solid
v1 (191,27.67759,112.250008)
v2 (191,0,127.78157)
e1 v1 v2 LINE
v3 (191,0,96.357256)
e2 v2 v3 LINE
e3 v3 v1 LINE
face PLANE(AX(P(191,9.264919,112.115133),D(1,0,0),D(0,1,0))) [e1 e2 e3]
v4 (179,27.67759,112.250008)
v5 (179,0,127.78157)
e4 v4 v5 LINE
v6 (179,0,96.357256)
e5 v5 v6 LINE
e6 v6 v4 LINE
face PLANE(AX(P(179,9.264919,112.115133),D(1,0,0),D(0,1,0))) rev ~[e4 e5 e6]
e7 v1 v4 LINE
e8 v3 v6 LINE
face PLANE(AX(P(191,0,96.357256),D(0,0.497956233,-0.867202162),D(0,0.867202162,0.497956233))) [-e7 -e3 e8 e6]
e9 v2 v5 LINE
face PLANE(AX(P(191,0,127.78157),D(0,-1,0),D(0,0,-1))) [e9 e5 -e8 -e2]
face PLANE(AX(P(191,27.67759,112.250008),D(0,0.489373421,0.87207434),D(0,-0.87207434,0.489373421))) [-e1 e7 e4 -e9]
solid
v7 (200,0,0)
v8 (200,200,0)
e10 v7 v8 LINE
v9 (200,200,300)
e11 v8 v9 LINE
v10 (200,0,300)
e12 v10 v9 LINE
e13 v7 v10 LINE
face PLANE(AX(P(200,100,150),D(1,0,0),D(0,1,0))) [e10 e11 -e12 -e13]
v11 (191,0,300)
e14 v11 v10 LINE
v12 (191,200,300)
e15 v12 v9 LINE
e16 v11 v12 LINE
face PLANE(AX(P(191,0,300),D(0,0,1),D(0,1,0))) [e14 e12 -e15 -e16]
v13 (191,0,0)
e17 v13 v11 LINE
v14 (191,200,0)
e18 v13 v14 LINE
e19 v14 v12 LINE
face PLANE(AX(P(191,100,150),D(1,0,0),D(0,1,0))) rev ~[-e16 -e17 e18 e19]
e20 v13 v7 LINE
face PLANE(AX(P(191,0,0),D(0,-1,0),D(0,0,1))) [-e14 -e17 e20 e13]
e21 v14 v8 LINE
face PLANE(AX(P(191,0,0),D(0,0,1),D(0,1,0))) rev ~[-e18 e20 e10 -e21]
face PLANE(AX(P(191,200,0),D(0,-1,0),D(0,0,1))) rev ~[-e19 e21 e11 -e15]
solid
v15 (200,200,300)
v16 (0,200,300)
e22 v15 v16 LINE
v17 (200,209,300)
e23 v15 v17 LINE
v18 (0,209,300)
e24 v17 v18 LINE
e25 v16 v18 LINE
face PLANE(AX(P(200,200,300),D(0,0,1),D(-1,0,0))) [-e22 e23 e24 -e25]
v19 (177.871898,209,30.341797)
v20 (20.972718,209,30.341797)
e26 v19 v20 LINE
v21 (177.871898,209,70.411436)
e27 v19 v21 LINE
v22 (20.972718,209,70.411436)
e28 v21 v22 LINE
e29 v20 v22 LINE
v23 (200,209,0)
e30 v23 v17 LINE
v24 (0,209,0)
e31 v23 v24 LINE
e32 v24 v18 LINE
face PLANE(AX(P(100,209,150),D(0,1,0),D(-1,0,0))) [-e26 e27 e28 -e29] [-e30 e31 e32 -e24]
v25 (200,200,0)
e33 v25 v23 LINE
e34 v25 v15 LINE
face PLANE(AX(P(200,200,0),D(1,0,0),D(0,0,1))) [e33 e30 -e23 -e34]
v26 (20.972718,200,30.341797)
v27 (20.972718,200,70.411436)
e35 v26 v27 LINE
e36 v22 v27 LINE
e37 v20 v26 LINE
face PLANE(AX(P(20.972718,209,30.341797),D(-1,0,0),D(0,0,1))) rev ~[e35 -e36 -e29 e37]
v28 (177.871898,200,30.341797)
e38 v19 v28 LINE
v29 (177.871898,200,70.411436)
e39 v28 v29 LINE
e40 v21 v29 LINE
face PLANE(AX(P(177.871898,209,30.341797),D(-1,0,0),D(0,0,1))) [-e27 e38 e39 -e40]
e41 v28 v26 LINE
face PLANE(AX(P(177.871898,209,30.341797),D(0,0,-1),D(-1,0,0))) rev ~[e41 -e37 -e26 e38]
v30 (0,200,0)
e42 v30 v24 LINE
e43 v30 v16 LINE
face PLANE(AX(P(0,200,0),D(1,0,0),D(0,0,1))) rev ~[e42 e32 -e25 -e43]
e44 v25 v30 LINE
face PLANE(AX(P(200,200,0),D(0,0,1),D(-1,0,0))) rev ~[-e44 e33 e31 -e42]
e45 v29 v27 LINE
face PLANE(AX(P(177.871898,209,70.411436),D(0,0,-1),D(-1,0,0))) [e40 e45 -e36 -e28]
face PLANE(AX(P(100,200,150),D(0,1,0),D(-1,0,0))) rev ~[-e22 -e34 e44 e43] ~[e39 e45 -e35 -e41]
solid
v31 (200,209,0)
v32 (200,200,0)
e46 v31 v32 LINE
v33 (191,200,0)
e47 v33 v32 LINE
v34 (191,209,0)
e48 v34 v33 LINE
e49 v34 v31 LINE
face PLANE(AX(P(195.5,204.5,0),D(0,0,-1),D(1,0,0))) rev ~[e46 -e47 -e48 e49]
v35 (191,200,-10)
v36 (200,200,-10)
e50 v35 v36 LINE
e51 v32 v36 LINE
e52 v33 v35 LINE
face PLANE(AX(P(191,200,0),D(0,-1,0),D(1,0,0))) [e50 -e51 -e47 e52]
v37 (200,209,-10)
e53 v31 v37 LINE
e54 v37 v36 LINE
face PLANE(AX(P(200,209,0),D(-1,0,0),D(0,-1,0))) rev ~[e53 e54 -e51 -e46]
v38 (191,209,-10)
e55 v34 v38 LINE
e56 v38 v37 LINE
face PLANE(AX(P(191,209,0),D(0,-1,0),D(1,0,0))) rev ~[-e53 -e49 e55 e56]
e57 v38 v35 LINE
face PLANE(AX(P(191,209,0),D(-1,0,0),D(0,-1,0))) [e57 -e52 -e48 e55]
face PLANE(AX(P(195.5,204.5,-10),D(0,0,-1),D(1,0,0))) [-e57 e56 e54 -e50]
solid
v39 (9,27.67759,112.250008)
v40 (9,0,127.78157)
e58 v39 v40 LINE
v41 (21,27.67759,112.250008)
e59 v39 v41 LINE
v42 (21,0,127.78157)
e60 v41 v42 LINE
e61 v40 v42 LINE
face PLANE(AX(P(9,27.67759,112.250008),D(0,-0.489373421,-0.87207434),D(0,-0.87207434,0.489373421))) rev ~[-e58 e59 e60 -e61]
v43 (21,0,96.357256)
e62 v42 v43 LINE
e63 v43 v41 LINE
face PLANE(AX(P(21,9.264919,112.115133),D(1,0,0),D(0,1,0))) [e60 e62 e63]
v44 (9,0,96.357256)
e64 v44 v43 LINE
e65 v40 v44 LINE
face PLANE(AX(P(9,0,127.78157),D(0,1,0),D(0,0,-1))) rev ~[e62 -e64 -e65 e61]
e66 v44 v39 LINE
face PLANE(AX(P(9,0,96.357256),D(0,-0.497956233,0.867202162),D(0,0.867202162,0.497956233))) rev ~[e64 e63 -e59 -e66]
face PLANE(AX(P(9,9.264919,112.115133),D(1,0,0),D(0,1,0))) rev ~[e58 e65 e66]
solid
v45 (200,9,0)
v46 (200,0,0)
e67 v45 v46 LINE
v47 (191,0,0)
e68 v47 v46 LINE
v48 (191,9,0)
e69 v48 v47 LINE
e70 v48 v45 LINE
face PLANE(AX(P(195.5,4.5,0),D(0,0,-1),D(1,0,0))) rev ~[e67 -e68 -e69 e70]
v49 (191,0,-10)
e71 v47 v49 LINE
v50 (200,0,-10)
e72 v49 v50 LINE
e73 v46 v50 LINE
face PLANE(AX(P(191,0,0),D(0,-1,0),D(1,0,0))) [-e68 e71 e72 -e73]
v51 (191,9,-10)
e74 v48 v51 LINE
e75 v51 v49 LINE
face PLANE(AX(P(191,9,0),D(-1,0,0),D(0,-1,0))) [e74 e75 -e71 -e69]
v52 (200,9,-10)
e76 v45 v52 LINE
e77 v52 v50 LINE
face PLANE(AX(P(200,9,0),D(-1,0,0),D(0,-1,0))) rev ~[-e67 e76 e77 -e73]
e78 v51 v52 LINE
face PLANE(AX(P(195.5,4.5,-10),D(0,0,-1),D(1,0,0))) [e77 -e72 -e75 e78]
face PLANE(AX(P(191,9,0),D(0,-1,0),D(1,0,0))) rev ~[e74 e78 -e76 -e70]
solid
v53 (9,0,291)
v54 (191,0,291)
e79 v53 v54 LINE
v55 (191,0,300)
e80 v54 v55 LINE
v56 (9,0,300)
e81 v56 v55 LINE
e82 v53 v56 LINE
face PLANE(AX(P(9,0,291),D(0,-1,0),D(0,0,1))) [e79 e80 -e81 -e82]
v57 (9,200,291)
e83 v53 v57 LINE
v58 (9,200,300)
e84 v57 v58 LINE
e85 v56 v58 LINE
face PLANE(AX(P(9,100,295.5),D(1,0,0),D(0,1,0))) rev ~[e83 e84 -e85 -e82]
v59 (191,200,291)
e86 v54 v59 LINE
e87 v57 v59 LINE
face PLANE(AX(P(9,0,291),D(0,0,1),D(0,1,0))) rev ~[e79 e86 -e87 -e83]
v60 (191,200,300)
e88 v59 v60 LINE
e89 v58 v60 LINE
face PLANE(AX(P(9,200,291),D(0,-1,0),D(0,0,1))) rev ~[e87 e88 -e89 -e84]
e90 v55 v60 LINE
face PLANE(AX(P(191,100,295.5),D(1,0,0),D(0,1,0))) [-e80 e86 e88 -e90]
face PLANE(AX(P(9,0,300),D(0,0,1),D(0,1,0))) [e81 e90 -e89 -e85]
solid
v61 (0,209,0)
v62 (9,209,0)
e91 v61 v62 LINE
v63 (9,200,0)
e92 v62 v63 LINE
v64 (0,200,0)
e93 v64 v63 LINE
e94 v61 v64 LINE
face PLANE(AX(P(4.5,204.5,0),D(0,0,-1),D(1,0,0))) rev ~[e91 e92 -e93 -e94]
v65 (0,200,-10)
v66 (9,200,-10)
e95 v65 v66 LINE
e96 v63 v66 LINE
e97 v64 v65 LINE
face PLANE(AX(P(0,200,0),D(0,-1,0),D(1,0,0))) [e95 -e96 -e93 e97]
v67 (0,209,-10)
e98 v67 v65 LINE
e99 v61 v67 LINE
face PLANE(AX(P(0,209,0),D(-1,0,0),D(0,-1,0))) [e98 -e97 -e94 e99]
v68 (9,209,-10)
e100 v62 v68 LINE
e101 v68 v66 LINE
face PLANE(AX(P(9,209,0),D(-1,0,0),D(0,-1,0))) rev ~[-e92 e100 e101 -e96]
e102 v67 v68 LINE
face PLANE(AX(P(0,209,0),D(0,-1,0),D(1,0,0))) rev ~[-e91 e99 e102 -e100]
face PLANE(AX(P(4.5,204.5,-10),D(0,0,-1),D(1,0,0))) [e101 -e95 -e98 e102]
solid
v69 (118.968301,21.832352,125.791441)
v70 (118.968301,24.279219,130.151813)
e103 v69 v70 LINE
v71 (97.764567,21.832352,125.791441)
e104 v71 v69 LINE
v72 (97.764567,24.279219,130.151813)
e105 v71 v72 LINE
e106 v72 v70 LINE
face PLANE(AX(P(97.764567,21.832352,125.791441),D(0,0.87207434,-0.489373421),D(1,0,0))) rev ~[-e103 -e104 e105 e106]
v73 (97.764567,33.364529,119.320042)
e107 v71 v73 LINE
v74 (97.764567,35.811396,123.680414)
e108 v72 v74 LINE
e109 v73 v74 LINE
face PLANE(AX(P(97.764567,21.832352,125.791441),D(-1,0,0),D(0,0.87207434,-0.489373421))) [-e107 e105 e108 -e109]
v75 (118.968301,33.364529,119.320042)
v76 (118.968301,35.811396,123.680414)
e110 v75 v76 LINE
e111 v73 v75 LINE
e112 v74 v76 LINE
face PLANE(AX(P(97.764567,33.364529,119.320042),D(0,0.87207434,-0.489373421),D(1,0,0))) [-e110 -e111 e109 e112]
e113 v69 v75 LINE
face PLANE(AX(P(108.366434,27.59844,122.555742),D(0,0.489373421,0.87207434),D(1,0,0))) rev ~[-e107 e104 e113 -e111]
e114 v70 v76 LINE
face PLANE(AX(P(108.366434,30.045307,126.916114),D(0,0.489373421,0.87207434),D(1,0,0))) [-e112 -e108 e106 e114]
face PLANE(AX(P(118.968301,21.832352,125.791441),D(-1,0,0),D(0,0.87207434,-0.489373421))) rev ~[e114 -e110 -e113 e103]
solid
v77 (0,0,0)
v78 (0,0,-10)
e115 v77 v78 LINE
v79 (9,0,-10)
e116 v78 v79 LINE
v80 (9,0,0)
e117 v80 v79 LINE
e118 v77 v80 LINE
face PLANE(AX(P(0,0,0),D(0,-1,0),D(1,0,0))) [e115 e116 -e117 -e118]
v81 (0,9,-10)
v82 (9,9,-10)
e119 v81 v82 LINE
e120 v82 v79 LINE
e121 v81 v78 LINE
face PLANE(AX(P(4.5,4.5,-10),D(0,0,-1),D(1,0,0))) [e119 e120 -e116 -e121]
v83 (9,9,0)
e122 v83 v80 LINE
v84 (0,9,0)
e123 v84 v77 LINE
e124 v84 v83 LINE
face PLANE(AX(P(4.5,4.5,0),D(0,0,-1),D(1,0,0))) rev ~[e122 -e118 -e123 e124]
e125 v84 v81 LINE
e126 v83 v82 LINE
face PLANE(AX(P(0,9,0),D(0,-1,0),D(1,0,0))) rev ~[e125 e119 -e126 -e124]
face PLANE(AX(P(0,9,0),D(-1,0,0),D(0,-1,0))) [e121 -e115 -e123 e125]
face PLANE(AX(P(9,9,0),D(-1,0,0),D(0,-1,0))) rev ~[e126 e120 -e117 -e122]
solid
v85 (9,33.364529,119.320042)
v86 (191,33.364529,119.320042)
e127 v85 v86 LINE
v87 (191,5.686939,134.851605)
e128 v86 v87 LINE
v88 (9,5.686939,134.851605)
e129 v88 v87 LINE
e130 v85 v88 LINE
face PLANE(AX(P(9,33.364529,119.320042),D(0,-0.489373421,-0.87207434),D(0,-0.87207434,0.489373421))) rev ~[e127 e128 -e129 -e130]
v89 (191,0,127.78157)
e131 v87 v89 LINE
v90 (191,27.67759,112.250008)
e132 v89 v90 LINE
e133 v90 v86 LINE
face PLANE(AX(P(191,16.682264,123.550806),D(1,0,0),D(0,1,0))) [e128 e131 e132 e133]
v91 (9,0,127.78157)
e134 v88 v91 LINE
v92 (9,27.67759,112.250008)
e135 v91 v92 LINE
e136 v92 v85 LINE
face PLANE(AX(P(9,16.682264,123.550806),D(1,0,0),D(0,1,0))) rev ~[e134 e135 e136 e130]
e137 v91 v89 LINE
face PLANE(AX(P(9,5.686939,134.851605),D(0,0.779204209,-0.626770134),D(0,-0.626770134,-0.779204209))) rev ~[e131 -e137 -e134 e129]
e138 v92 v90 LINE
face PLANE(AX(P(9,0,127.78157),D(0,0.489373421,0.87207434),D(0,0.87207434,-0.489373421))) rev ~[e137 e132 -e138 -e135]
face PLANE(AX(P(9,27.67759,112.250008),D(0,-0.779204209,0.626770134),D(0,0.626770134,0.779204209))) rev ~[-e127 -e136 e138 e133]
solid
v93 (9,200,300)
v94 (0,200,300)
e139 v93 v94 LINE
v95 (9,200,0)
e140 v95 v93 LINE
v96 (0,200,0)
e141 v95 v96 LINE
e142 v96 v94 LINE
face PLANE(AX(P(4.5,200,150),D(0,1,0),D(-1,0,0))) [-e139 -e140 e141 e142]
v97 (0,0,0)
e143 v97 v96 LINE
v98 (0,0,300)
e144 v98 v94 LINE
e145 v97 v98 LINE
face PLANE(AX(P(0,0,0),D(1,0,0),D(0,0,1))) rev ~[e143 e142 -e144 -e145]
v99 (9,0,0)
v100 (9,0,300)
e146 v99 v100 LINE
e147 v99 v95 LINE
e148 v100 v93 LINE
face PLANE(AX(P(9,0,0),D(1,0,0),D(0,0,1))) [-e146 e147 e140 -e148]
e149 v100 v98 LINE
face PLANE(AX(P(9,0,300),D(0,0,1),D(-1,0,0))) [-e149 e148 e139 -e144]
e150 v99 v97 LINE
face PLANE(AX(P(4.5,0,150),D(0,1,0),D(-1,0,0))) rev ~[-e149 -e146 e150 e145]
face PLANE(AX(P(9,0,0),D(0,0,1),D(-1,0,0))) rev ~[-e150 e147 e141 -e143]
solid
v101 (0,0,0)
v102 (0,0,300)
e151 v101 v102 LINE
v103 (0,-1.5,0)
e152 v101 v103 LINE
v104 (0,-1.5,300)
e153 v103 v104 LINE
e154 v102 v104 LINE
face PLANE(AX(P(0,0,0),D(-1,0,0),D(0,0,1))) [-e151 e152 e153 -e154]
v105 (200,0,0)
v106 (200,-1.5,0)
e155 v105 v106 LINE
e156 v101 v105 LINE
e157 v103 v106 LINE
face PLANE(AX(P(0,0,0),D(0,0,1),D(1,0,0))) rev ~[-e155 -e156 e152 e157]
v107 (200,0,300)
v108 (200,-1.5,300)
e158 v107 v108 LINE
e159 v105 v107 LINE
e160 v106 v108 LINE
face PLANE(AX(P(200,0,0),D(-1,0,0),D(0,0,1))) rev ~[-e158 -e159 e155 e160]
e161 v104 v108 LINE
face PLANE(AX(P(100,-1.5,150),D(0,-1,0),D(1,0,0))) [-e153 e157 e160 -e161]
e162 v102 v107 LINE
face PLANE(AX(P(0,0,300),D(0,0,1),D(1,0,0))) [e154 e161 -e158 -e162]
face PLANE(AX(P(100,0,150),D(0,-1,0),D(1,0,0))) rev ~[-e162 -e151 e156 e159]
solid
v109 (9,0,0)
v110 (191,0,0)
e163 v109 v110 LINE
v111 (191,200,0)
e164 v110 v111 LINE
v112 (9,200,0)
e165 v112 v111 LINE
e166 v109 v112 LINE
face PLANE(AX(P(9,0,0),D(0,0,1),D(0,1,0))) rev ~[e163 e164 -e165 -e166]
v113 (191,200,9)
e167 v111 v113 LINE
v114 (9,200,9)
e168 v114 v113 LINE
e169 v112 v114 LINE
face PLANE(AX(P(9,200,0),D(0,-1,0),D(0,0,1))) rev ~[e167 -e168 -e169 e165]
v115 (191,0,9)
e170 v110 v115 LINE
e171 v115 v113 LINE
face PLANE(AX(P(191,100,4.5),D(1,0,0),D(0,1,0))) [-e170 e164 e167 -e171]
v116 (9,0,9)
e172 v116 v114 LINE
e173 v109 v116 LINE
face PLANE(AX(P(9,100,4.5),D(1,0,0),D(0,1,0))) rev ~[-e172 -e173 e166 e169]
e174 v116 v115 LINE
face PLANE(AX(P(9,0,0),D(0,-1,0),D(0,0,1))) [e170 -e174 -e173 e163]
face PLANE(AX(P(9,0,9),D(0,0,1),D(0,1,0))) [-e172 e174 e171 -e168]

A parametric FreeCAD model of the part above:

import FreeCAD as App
import Part
import Sketcher
Q = App.Units.Quantity

doc = App.newDocument("Part")
body = doc.addObject("PartDesign::Body", "Body")

# Sketch on XZ plane
sketch1 = body.newObject("Sketcher::SketchObject", "Sketch")
sketch1.AttachmentSupport = (doc.getObject("XZ_Plane"), [""])
sketch1.MapMode = "FlatFace"
sketch1.addGeometry(Part.LineSegment(App.Vector(0, 300, 0), App.Vector(0, 0, 0)), False)
sketch1.addGeometry(Part.LineSegment(App.Vector(0, 0, 0), App.Vector(200, 0, 0)), False)
sketch1.addGeometry(Part.LineSegment(App.Vector(200, 0, 0), App.Vector(200, 300, 0)), False)
sketch1.addGeometry(Part.LineSegment(App.Vector(200, 300, 0), App.Vector(0, 300, 0)), False)
sketch1.addConstraint(Sketcher.Constraint("Coincident", 0, 2, 1, 1))
sketch1.addConstraint(Sketcher.Constraint("Coincident", 1, 2, 2, 1))
sketch1.addConstraint(Sketcher.Constraint("Coincident", 2, 2, 3, 1))
sketch1.addConstraint(Sketcher.Constraint("Coincident", 3, 2, 0, 1))
sketch1.addConstraint(Sketcher.Constraint("Vertical", 0))
sketch1.addConstraint(Sketcher.Constraint("Horizontal", 1))
sketch1.addConstraint(Sketcher.Constraint("Vertical", 2))
sketch1.addConstraint(Sketcher.Constraint("Horizontal", 3))
sketch1.addConstraint(Sketcher.Constraint("Coincident", 0, 2, -1, 1))
sketch1.addConstraint(Sketcher.Constraint("DistanceX", 1, 1, 1, 2, Q("200 mm")))
sketch1.addConstraint(Sketcher.Constraint("DistanceY", 0, 2, 0, 1, Q("300 mm")))
pad1 = body.newObject("PartDesign::Pad", "Pad")
pad1.Profile = sketch1
pad1.Length = 1.5
body2 = doc.addObject("PartDesign::Body", "Body001")

# Sketch on XZ plane
sketch2 = body2.newObject("Sketcher::SketchObject", "Sketch001")
sketch2.AttachmentSupport = (doc.getObject("XZ_Plane001"), [""])
sketch2.MapMode = "FlatFace"
sketch2.addGeometry(Part.LineSegment(App.Vector(9, 300, 0), App.Vector(9, 0, 0)), False)
sketch2.addGeometry(Part.LineSegment(App.Vector(9, 0, 0), App.Vector(0, 0, 0)), False)
sketch2.addGeometry(Part.LineSegment(App.Vector(0, 0, 0), App.Vector(0, 300, 0)), False)
sketch2.addGeometry(Part.LineSegment(App.Vector(0, 300, 0), App.Vector(9, 300, 0)), False)
sketch2.addConstraint(Sketcher.Constraint("Coincident", 0, 2, 1, 1))
sketch2.addConstraint(Sketcher.Constraint("Coincident", 1, 2, 2, 1))
sketch2.addConstraint(Sketcher.Constraint("Coincident", 2, 2, 3, 1))
sketch2.addConstraint(Sketcher.Constraint("Coincident", 3, 2, 0, 1))
sketch2.addConstraint(Sketcher.Constraint("Vertical", 0))
sketch2.addConstraint(Sketcher.Constraint("Horizontal", 1))
sketch2.addConstraint(Sketcher.Constraint("Vertical", 2))
sketch2.addConstraint(Sketcher.Constraint("Horizontal", 3))
sketch2.addConstraint(Sketcher.Constraint("Coincident", 1, 2, -1, 1))
sketch2.addConstraint(Sketcher.Constraint("DistanceX", 1, 2, 1, 1, Q("9 mm")))
sketch2.addConstraint(Sketcher.Constraint("DistanceY", 0, 2, 0, 1, Q("300 mm")))
pad2 = body2.newObject("PartDesign::Pad", "Pad001")
pad2.Profile = sketch2
pad2.Length = 200
pad2.Reversed = True
body3 = doc.addObject("PartDesign::Body", "Body002")

# Sketch on YZ plane
sketch3 = body3.newObject("Sketcher::SketchObject", "Sketch002")
sketch3.AttachmentSupport = (doc.getObject("YZ_Plane002"), [""])
sketch3.MapMode = "FlatFace"
sketch3.AttachmentOffset = App.Placement(App.Vector(0, 0, 9), App.Rotation())
sketch3.addGeometry(Part.LineSegment(App.Vector(0, 127.78157, 0), App.Vector(0, 96.357256, 0)), False)
sketch3.addGeometry(Part.LineSegment(App.Vector(0, 96.357256, 0), App.Vector(27.67759, 112.250008, 0)), False)
sketch3.addGeometry(Part.LineSegment(App.Vector(27.67759, 112.250008, 0), App.Vector(0, 127.78157, 0)), False)
sketch3.addConstraint(Sketcher.Constraint("Coincident", 0, 2, 1, 1))
sketch3.addConstraint(Sketcher.Constraint("Coincident", 1, 2, 2, 1))
sketch3.addConstraint(Sketcher.Constraint("Coincident", 2, 2, 0, 1))
sketch3.addConstraint(Sketcher.Constraint("Vertical", 0))
sketch3.addConstraint(Sketcher.Constraint("PointOnObject", 0, 2, -2))
sketch3.addConstraint(Sketcher.Constraint("Distance", 1, Q("31.915961 mm")))
sketch3.addConstraint(Sketcher.Constraint("Distance", 2, Q("31.73765 mm")))
sketch3.addConstraint(Sketcher.Constraint("DistanceY", 0, 2, 0, 1, Q("31.424314 mm")))
sketch3.addConstraint(Sketcher.Constraint("DistanceY", -1, 1, 2, 2, Q("127.78157 mm")))
pad3 = body3.newObject("PartDesign::Pad", "Pad002")
pad3.Profile = sketch3
pad3.Length = 12
body4 = doc.addObject("PartDesign::Body", "Body003")

# Sketch on YZ plane
sketch4 = body4.newObject("Sketcher::SketchObject", "Sketch003")
sketch4.AttachmentSupport = (doc.getObject("YZ_Plane003"), [""])
sketch4.MapMode = "FlatFace"
sketch4.AttachmentOffset = App.Placement(App.Vector(0, 0, 9), App.Rotation())
sketch4.addGeometry(Part.LineSegment(App.Vector(0, 127.78157, 0), App.Vector(27.67759, 112.250008, 0)), False)
sketch4.addGeometry(Part.LineSegment(App.Vector(27.67759, 112.250008, 0), App.Vector(33.364529, 119.320042, 0)), False)
sketch4.addGeometry(Part.LineSegment(App.Vector(33.364529, 119.320042, 0), App.Vector(5.686939, 134.851605, 0)), False)
sketch4.addGeometry(Part.LineSegment(App.Vector(5.686939, 134.851605, 0), App.Vector(0, 127.78157, 0)), False)
sketch4.addConstraint(Sketcher.Constraint("Coincident", 0, 2, 1, 1))
sketch4.addConstraint(Sketcher.Constraint("Coincident", 1, 2, 2, 1))
sketch4.addConstraint(Sketcher.Constraint("Coincident", 2, 2, 3, 1))
sketch4.addConstraint(Sketcher.Constraint("Coincident", 3, 2, 0, 1))
sketch4.addConstraint(Sketcher.Constraint("PointOnObject", 3, 2, -2))
sketch4.addConstraint(Sketcher.Constraint("Parallel", 0, 2))
sketch4.addConstraint(Sketcher.Constraint("Parallel", 1, 3))
sketch4.addConstraint(Sketcher.Constraint("Distance", 0, Q("31.73765 mm")))
sketch4.addConstraint(Sketcher.Constraint("DistanceX", -1, 1, 0, 2, Q("27.67759 mm")))
sketch4.addConstraint(Sketcher.Constraint("DistanceX", -1, 1, 1, 2, Q("33.364529 mm")))
sketch4.addConstraint(Sketcher.Constraint("DistanceY", -1, 1, 3, 2, Q("127.78157 mm")))
sketch4.addConstraint(Sketcher.Constraint("Distance", 1, Q("9.073404 mm")))
pad4 = body4.newObject("PartDesign::Pad", "Pad003")
pad4.Profile = sketch4
pad4.Length = 182
body5 = doc.addObject("PartDesign::Body", "Body004")

# Sketch on an angled plane
sketch5 = body5.newObject("Sketcher::SketchObject", "Sketch004")
sketch5.Placement = App.Placement(App.Vector(0, 58.912564, 104.983502), App.Rotation(App.Vector(1, 0, 0), App.Vector(0, 0.87207434, -0.489373421), App.Vector(0, 0.489373421, 0.87207434), "ZXY"))
sketch5.addGeometry(Part.LineSegment(App.Vector(97.764567, -29.295708, 0), App.Vector(97.764567, -42.519554, 0)), False)
sketch5.addGeometry(Part.LineSegment(App.Vector(97.764567, -42.519554, 0), App.Vector(118.968301, -42.519554, 0)), False)
sketch5.addGeometry(Part.LineSegment(App.Vector(118.968301, -42.519554, 0), App.Vector(118.968301, -29.295708, 0)), False)
sketch5.addGeometry(Part.LineSegment(App.Vector(118.968301, -29.295708, 0), App.Vector(97.764567, -29.295708, 0)), False)
sketch5.addConstraint(Sketcher.Constraint("Coincident", 0, 2, 1, 1))
sketch5.addConstraint(Sketcher.Constraint("Coincident", 1, 2, 2, 1))
sketch5.addConstraint(Sketcher.Constraint("Coincident", 2, 2, 3, 1))
sketch5.addConstraint(Sketcher.Constraint("Coincident", 3, 2, 0, 1))
sketch5.addConstraint(Sketcher.Constraint("Vertical", 0))
sketch5.addConstraint(Sketcher.Constraint("Horizontal", 1))
sketch5.addConstraint(Sketcher.Constraint("Vertical", 2))
sketch5.addConstraint(Sketcher.Constraint("Horizontal", 3))
sketch5.addConstraint(Sketcher.Constraint("DistanceX", -1, 1, 1, 2, Q("118.968301 mm")))
sketch5.addConstraint(Sketcher.Constraint("DistanceX", 1, 1, 1, 2, Q("21.203734 mm")))
sketch5.addConstraint(Sketcher.Constraint("DistanceY", 0, 2, 0, 1, Q("13.223847 mm")))
sketch5.addConstraint(Sketcher.Constraint("DistanceY", 0, 2, -1, 1, Q("42.519554 mm")))
pad5 = body5.newObject("PartDesign::Pad", "Pad004")
pad5.Profile = sketch5
pad5.Length = 5
body6 = doc.addObject("PartDesign::Body", "Body005")

# Sketch on YZ plane
sketch6 = body6.newObject("Sketcher::SketchObject", "Sketch005")
sketch6.AttachmentSupport = (doc.getObject("YZ_Plane005"), [""])
sketch6.MapMode = "FlatFace"
sketch6.AttachmentOffset = App.Placement(App.Vector(0, 0, 191), App.Rotation())
sketch6.addGeometry(Part.LineSegment(App.Vector(0, 127.78157, 0), App.Vector(0, 96.357256, 0)), False)
sketch6.addGeometry(Part.LineSegment(App.Vector(0, 96.357256, 0), App.Vector(27.67759, 112.250008, 0)), False)
sketch6.addGeometry(Part.LineSegment(App.Vector(27.67759, 112.250008, 0), App.Vector(0, 127.78157, 0)), False)
sketch6.addConstraint(Sketcher.Constraint("Coincident", 0, 2, 1, 1))
sketch6.addConstraint(Sketcher.Constraint("Coincident", 1, 2, 2, 1))
sketch6.addConstraint(Sketcher.Constraint("Coincident", 2, 2, 0, 1))
sketch6.addConstraint(Sketcher.Constraint("Vertical", 0))
sketch6.addConstraint(Sketcher.Constraint("PointOnObject", 0, 2, -2))
sketch6.addConstraint(Sketcher.Constraint("Distance", 1, Q("31.915961 mm")))
sketch6.addConstraint(Sketcher.Constraint("Distance", 2, Q("31.73765 mm")))
sketch6.addConstraint(Sketcher.Constraint("DistanceY", 0, 2, 0, 1, Q("31.424314 mm")))
sketch6.addConstraint(Sketcher.Constraint("DistanceY", -1, 1, 2, 2, Q("127.78157 mm")))
pad6 = body6.newObject("PartDesign::Pad", "Pad005")
pad6.Profile = sketch6
pad6.Length = 12
pad6.Reversed = True
body7 = doc.addObject("PartDesign::Body", "Body006")

# Sketch on YZ plane
sketch7 = body7.newObject("Sketcher::SketchObject", "Sketch006")
sketch7.AttachmentSupport = (doc.getObject("YZ_Plane006"), [""])
sketch7.MapMode = "FlatFace"
sketch7.AttachmentOffset = App.Placement(App.Vector(0, 0, 9), App.Rotation())
sketch7.addGeometry(Part.LineSegment(App.Vector(0, 300, 0), App.Vector(0, 291, 0)), False)
sketch7.addGeometry(Part.LineSegment(App.Vector(0, 291, 0), App.Vector(200, 291, 0)), False)
sketch7.addGeometry(Part.LineSegment(App.Vector(200, 291, 0), App.Vector(200, 300, 0)), False)
sketch7.addGeometry(Part.LineSegment(App.Vector(200, 300, 0), App.Vector(0, 300, 0)), False)
sketch7.addConstraint(Sketcher.Constraint("Coincident", 0, 2, 1, 1))
sketch7.addConstraint(Sketcher.Constraint("Coincident", 1, 2, 2, 1))
sketch7.addConstraint(Sketcher.Constraint("Coincident", 2, 2, 3, 1))
sketch7.addConstraint(Sketcher.Constraint("Coincident", 3, 2, 0, 1))
sketch7.addConstraint(Sketcher.Constraint("Vertical", 0))
sketch7.addConstraint(Sketcher.Constraint("Horizontal", 1))
sketch7.addConstraint(Sketcher.Constraint("Vertical", 2))
sketch7.addConstraint(Sketcher.Constraint("Horizontal", 3))
sketch7.addConstraint(Sketcher.Constraint("PointOnObject", 0, 2, -2))
sketch7.addConstraint(Sketcher.Constraint("DistanceX", 1, 1, 1, 2, Q("200 mm")))
sketch7.addConstraint(Sketcher.Constraint("DistanceY", 0, 2, 0, 1, Q("9 mm")))
sketch7.addConstraint(Sketcher.Constraint("DistanceY", -1, 1, 0, 2, Q("291 mm")))
pad7 = body7.newObject("PartDesign::Pad", "Pad006")
pad7.Profile = sketch7
pad7.Length = 182
body8 = doc.addObject("PartDesign::Body", "Body007")

# Sketch on YZ plane
sketch8 = body8.newObject("Sketcher::SketchObject", "Sketch007")
sketch8.AttachmentSupport = (doc.getObject("YZ_Plane007"), [""])
sketch8.MapMode = "FlatFace"
sketch8.AttachmentOffset = App.Placement(App.Vector(0, 0, 9), App.Rotation())
sketch8.addGeometry(Part.LineSegment(App.Vector(0, 9, 0), App.Vector(0, 0, 0)), False)
sketch8.addGeometry(Part.LineSegment(App.Vector(0, 0, 0), App.Vector(200, 0, 0)), False)
sketch8.addGeometry(Part.LineSegment(App.Vector(200, 0, 0), App.Vector(200, 9, 0)), False)
sketch8.addGeometry(Part.LineSegment(App.Vector(200, 9, 0), App.Vector(0, 9, 0)), False)
sketch8.addConstraint(Sketcher.Constraint("Coincident", 0, 2, 1, 1))
sketch8.addConstraint(Sketcher.Constraint("Coincident", 1, 2, 2, 1))
sketch8.addConstraint(Sketcher.Constraint("Coincident", 2, 2, 3, 1))
sketch8.addConstraint(Sketcher.Constraint("Coincident", 3, 2, 0, 1))
sketch8.addConstraint(Sketcher.Constraint("Vertical", 0))
sketch8.addConstraint(Sketcher.Constraint("Horizontal", 1))
sketch8.addConstraint(Sketcher.Constraint("Vertical", 2))
sketch8.addConstraint(Sketcher.Constraint("Horizontal", 3))
sketch8.addConstraint(Sketcher.Constraint("Coincident", 0, 2, -1, 1))
sketch8.addConstraint(Sketcher.Constraint("DistanceX", 1, 1, 1, 2, Q("200 mm")))
sketch8.addConstraint(Sketcher.Constraint("DistanceY", 0, 2, 0, 1, Q("9 mm")))
pad8 = body8.newObject("PartDesign::Pad", "Pad007")
pad8.Profile = sketch8
pad8.Length = 182
body9 = doc.addObject("PartDesign::Body", "Body008")

# Sketch on YZ plane
sketch9 = body9.newObject("Sketcher::SketchObject", "Sketch008")
sketch9.AttachmentSupport = (doc.getObject("YZ_Plane008"), [""])
sketch9.MapMode = "FlatFace"
sketch9.AttachmentOffset = App.Placement(App.Vector(0, 0, 191), App.Rotation())
sketch9.addGeometry(Part.LineSegment(App.Vector(0, 300, 0), App.Vector(0, 0, 0)), False)
sketch9.addGeometry(Part.LineSegment(App.Vector(0, 0, 0), App.Vector(200, 0, 0)), False)
sketch9.addGeometry(Part.LineSegment(App.Vector(200, 0, 0), App.Vector(200, 300, 0)), False)
sketch9.addGeometry(Part.LineSegment(App.Vector(200, 300, 0), App.Vector(0, 300, 0)), False)
sketch9.addConstraint(Sketcher.Constraint("Coincident", 0, 2, 1, 1))
sketch9.addConstraint(Sketcher.Constraint("Coincident", 1, 2, 2, 1))
sketch9.addConstraint(Sketcher.Constraint("Coincident", 2, 2, 3, 1))
sketch9.addConstraint(Sketcher.Constraint("Coincident", 3, 2, 0, 1))
sketch9.addConstraint(Sketcher.Constraint("Vertical", 0))
sketch9.addConstraint(Sketcher.Constraint("Horizontal", 1))
sketch9.addConstraint(Sketcher.Constraint("Vertical", 2))
sketch9.addConstraint(Sketcher.Constraint("Horizontal", 3))
sketch9.addConstraint(Sketcher.Constraint("Coincident", 0, 2, -1, 1))
sketch9.addConstraint(Sketcher.Constraint("DistanceX", 1, 1, 1, 2, Q("200 mm")))
sketch9.addConstraint(Sketcher.Constraint("DistanceY", 0, 2, 0, 1, Q("300 mm")))
pad9 = body9.newObject("PartDesign::Pad", "Pad008")
pad9.Profile = sketch9
pad9.Length = 9
body10 = doc.addObject("PartDesign::Body", "Body009")

# Sketch on XZ plane
sketch10 = body10.newObject("Sketcher::SketchObject", "Sketch009")
sketch10.AttachmentSupport = (doc.getObject("XZ_Plane009"), [""])
sketch10.MapMode = "FlatFace"
sketch10.AttachmentOffset = App.Placement(App.Vector(0, 0, -200), App.Rotation())
sketch10.addGeometry(Part.LineSegment(App.Vector(200, 300, 0), App.Vector(200, 0, 0)), False)
sketch10.addGeometry(Part.LineSegment(App.Vector(200, 0, 0), App.Vector(0, 0, 0)), False)
sketch10.addGeometry(Part.LineSegment(App.Vector(0, 0, 0), App.Vector(0, 300, 0)), False)
sketch10.addGeometry(Part.LineSegment(App.Vector(0, 300, 0), App.Vector(200, 300, 0)), False)
sketch10.addConstraint(Sketcher.Constraint("Coincident", 0, 2, 1, 1))
sketch10.addConstraint(Sketcher.Constraint("Coincident", 1, 2, 2, 1))
sketch10.addConstraint(Sketcher.Constraint("Coincident", 2, 2, 3, 1))
sketch10.addConstraint(Sketcher.Constraint("Coincident", 3, 2, 0, 1))
sketch10.addConstraint(Sketcher.Constraint("Vertical", 0))
sketch10.addConstraint(Sketcher.Constraint("Horizontal", 1))
sketch10.addConstraint(Sketcher.Constraint("Vertical", 2))
sketch10.addConstraint(Sketcher.Constraint("Horizontal", 3))
sketch10.addConstraint(Sketcher.Constraint("Coincident", 1, 2, -1, 1))
sketch10.addConstraint(Sketcher.Constraint("DistanceX", 1, 2, 1, 1, Q("200 mm")))
sketch10.addConstraint(Sketcher.Constraint("DistanceY", 0, 2, 0, 1, Q("300 mm")))
pad10 = body10.newObject("PartDesign::Pad", "Pad009")
pad10.Profile = sketch10
pad10.Length = 9
pad10.Reversed = True

# Sketch on XZ plane
sketch11 = body10.newObject("Sketcher::SketchObject", "Sketch010")
sketch11.AttachmentSupport = (doc.getObject("XZ_Plane009"), [""])
sketch11.MapMode = "FlatFace"
sketch11.AttachmentOffset = App.Placement(App.Vector(0, 0, -209), App.Rotation())
sketch11.addGeometry(Part.LineSegment(App.Vector(177.871898, 70.411436, 0), App.Vector(177.871898, 30.341797, 0)), False)
sketch11.addGeometry(Part.LineSegment(App.Vector(177.871898, 30.341797, 0), App.Vector(20.972718, 30.341797, 0)), False)
sketch11.addGeometry(Part.LineSegment(App.Vector(20.972718, 30.341797, 0), App.Vector(20.972718, 70.411436, 0)), False)
sketch11.addGeometry(Part.LineSegment(App.Vector(20.972718, 70.411436, 0), App.Vector(177.871898, 70.411436, 0)), False)
sketch11.addConstraint(Sketcher.Constraint("Coincident", 0, 2, 1, 1))
sketch11.addConstraint(Sketcher.Constraint("Coincident", 1, 2, 2, 1))
sketch11.addConstraint(Sketcher.Constraint("Coincident", 2, 2, 3, 1))
sketch11.addConstraint(Sketcher.Constraint("Coincident", 3, 2, 0, 1))
sketch11.addConstraint(Sketcher.Constraint("Vertical", 0))
sketch11.addConstraint(Sketcher.Constraint("Horizontal", 1))
sketch11.addConstraint(Sketcher.Constraint("Vertical", 2))
sketch11.addConstraint(Sketcher.Constraint("Horizontal", 3))
sketch11.addConstraint(Sketcher.Constraint("DistanceX", 1, 2, 1, 1, Q("156.89918 mm")))
sketch11.addConstraint(Sketcher.Constraint("DistanceY", 0, 2, 0, 1, Q("40.06964 mm")))
sketch11.addConstraint(Sketcher.Constraint("DistanceX", -1, 1, 0, 2, Q("177.871898 mm")))
sketch11.addConstraint(Sketcher.Constraint("DistanceY", -1, 1, 0, 2, Q("30.341797 mm")))
pocket1 = body10.newObject("PartDesign::Pocket", "Pocket")
pocket1.Profile = sketch11
pocket1.Length = 9
pocket1.Reversed = True
body11 = doc.addObject("PartDesign::Body", "Body010")

# Sketch on XY plane
sketch12 = body11.newObject("Sketcher::SketchObject", "Sketch011")
sketch12.AttachmentSupport = (doc.getObject("XY_Plane010"), [""])
sketch12.MapMode = "FlatFace"
sketch12.addGeometry(Part.LineSegment(App.Vector(191, 0, 0), App.Vector(191, 9, 0)), False)
sketch12.addGeometry(Part.LineSegment(App.Vector(191, 9, 0), App.Vector(200, 9, 0)), False)
sketch12.addGeometry(Part.LineSegment(App.Vector(200, 9, 0), App.Vector(200, 0, 0)), False)
sketch12.addGeometry(Part.LineSegment(App.Vector(200, 0, 0), App.Vector(191, 0, 0)), False)
sketch12.addConstraint(Sketcher.Constraint("Coincident", 0, 2, 1, 1))
sketch12.addConstraint(Sketcher.Constraint("Coincident", 1, 2, 2, 1))
sketch12.addConstraint(Sketcher.Constraint("Coincident", 2, 2, 3, 1))
sketch12.addConstraint(Sketcher.Constraint("Coincident", 3, 2, 0, 1))
sketch12.addConstraint(Sketcher.Constraint("Vertical", 0))
sketch12.addConstraint(Sketcher.Constraint("Horizontal", 1))
sketch12.addConstraint(Sketcher.Constraint("Vertical", 2))
sketch12.addConstraint(Sketcher.Constraint("Horizontal", 3))
sketch12.addConstraint(Sketcher.Constraint("PointOnObject", 2, 2, -1))
sketch12.addConstraint(Sketcher.Constraint("Equal", 3, 0))
sketch12.addConstraint(Sketcher.Constraint("DistanceX", 1, 1, 1, 2, Q("9 mm")))
sketch12.addConstraint(Sketcher.Constraint("DistanceX", -1, 1, 0, 2, Q("191 mm")))
pad11 = body11.newObject("PartDesign::Pad", "Pad010")
pad11.Profile = sketch12
pad11.Length = 10
pad11.Reversed = True
body12 = doc.addObject("PartDesign::Body", "Body011")

# Sketch on XY plane
sketch13 = body12.newObject("Sketcher::SketchObject", "Sketch012")
sketch13.AttachmentSupport = (doc.getObject("XY_Plane011"), [""])
sketch13.MapMode = "FlatFace"
sketch13.addGeometry(Part.LineSegment(App.Vector(191, 200, 0), App.Vector(191, 209, 0)), False)
sketch13.addGeometry(Part.LineSegment(App.Vector(191, 209, 0), App.Vector(200, 209, 0)), False)
sketch13.addGeometry(Part.LineSegment(App.Vector(200, 209, 0), App.Vector(200, 200, 0)), False)
sketch13.addGeometry(Part.LineSegment(App.Vector(200, 200, 0), App.Vector(191, 200, 0)), False)
sketch13.addConstraint(Sketcher.Constraint("Coincident", 0, 2, 1, 1))
sketch13.addConstraint(Sketcher.Constraint("Coincident", 1, 2, 2, 1))
sketch13.addConstraint(Sketcher.Constraint("Coincident", 2, 2, 3, 1))
sketch13.addConstraint(Sketcher.Constraint("Coincident", 3, 2, 0, 1))
sketch13.addConstraint(Sketcher.Constraint("Vertical", 0))
sketch13.addConstraint(Sketcher.Constraint("Horizontal", 1))
sketch13.addConstraint(Sketcher.Constraint("Vertical", 2))
sketch13.addConstraint(Sketcher.Constraint("Horizontal", 3))
sketch13.addConstraint(Sketcher.Constraint("Equal", 3, 0))
sketch13.addConstraint(Sketcher.Constraint("DistanceX", 1, 1, 1, 2, Q("9 mm")))
sketch13.addConstraint(Sketcher.Constraint("DistanceX", -1, 1, 0, 2, Q("191 mm")))
sketch13.addConstraint(Sketcher.Constraint("DistanceY", -1, 1, 0, 2, Q("209 mm")))
pad12 = body12.newObject("PartDesign::Pad", "Pad011")
pad12.Profile = sketch13
pad12.Length = 10
pad12.Reversed = True
body13 = doc.addObject("PartDesign::Body", "Body012")

# Sketch on XY plane
sketch14 = body13.newObject("Sketcher::SketchObject", "Sketch013")
sketch14.AttachmentSupport = (doc.getObject("XY_Plane012"), [""])
sketch14.MapMode = "FlatFace"
sketch14.addGeometry(Part.LineSegment(App.Vector(0, 200, 0), App.Vector(0, 209, 0)), False)
sketch14.addGeometry(Part.LineSegment(App.Vector(0, 209, 0), App.Vector(9, 209, 0)), False)
sketch14.addGeometry(Part.LineSegment(App.Vector(9, 209, 0), App.Vector(9, 200, 0)), False)
sketch14.addGeometry(Part.LineSegment(App.Vector(9, 200, 0), App.Vector(0, 200, 0)), False)
sketch14.addConstraint(Sketcher.Constraint("Coincident", 0, 2, 1, 1))
sketch14.addConstraint(Sketcher.Constraint("Coincident", 1, 2, 2, 1))
sketch14.addConstraint(Sketcher.Constraint("Coincident", 2, 2, 3, 1))
sketch14.addConstraint(Sketcher.Constraint("Coincident", 3, 2, 0, 1))
sketch14.addConstraint(Sketcher.Constraint("Vertical", 0))
sketch14.addConstraint(Sketcher.Constraint("Horizontal", 1))
sketch14.addConstraint(Sketcher.Constraint("Vertical", 2))
sketch14.addConstraint(Sketcher.Constraint("Horizontal", 3))
sketch14.addConstraint(Sketcher.Constraint("PointOnObject", 0, 2, -2))
sketch14.addConstraint(Sketcher.Constraint("Equal", 3, 0))
sketch14.addConstraint(Sketcher.Constraint("DistanceX", 1, 1, 1, 2, Q("9 mm")))
sketch14.addConstraint(Sketcher.Constraint("DistanceY", -1, 1, 0, 2, Q("209 mm")))
pad13 = body13.newObject("PartDesign::Pad", "Pad012")
pad13.Profile = sketch14
pad13.Length = 10
pad13.Reversed = True
body14 = doc.addObject("PartDesign::Body", "Body013")

# Sketch on XY plane
sketch15 = body14.newObject("Sketcher::SketchObject", "Sketch014")
sketch15.AttachmentSupport = (doc.getObject("XY_Plane013"), [""])
sketch15.MapMode = "FlatFace"
sketch15.addGeometry(Part.LineSegment(App.Vector(0, 0, 0), App.Vector(0, 9, 0)), False)
sketch15.addGeometry(Part.LineSegment(App.Vector(0, 9, 0), App.Vector(9, 9, 0)), False)
sketch15.addGeometry(Part.LineSegment(App.Vector(9, 9, 0), App.Vector(9, 0, 0)), False)
sketch15.addGeometry(Part.LineSegment(App.Vector(9, 0, 0), App.Vector(0, 0, 0)), False)
sketch15.addConstraint(Sketcher.Constraint("Coincident", 0, 2, 1, 1))
sketch15.addConstraint(Sketcher.Constraint("Coincident", 1, 2, 2, 1))
sketch15.addConstraint(Sketcher.Constraint("Coincident", 2, 2, 3, 1))
sketch15.addConstraint(Sketcher.Constraint("Coincident", 3, 2, 0, 1))
sketch15.addConstraint(Sketcher.Constraint("Vertical", 0))
sketch15.addConstraint(Sketcher.Constraint("Horizontal", 1))
sketch15.addConstraint(Sketcher.Constraint("Vertical", 2))
sketch15.addConstraint(Sketcher.Constraint("Horizontal", 3))
sketch15.addConstraint(Sketcher.Constraint("Coincident", 3, 2, -1, 1))
sketch15.addConstraint(Sketcher.Constraint("Equal", 3, 0))
sketch15.addConstraint(Sketcher.Constraint("DistanceX", 1, 1, 1, 2, Q("9 mm")))
pad14 = body14.newObject("PartDesign::Pad", "Pad013")
pad14.Profile = sketch15
pad14.Length = 10
pad14.Reversed = True

doc.recompute()
